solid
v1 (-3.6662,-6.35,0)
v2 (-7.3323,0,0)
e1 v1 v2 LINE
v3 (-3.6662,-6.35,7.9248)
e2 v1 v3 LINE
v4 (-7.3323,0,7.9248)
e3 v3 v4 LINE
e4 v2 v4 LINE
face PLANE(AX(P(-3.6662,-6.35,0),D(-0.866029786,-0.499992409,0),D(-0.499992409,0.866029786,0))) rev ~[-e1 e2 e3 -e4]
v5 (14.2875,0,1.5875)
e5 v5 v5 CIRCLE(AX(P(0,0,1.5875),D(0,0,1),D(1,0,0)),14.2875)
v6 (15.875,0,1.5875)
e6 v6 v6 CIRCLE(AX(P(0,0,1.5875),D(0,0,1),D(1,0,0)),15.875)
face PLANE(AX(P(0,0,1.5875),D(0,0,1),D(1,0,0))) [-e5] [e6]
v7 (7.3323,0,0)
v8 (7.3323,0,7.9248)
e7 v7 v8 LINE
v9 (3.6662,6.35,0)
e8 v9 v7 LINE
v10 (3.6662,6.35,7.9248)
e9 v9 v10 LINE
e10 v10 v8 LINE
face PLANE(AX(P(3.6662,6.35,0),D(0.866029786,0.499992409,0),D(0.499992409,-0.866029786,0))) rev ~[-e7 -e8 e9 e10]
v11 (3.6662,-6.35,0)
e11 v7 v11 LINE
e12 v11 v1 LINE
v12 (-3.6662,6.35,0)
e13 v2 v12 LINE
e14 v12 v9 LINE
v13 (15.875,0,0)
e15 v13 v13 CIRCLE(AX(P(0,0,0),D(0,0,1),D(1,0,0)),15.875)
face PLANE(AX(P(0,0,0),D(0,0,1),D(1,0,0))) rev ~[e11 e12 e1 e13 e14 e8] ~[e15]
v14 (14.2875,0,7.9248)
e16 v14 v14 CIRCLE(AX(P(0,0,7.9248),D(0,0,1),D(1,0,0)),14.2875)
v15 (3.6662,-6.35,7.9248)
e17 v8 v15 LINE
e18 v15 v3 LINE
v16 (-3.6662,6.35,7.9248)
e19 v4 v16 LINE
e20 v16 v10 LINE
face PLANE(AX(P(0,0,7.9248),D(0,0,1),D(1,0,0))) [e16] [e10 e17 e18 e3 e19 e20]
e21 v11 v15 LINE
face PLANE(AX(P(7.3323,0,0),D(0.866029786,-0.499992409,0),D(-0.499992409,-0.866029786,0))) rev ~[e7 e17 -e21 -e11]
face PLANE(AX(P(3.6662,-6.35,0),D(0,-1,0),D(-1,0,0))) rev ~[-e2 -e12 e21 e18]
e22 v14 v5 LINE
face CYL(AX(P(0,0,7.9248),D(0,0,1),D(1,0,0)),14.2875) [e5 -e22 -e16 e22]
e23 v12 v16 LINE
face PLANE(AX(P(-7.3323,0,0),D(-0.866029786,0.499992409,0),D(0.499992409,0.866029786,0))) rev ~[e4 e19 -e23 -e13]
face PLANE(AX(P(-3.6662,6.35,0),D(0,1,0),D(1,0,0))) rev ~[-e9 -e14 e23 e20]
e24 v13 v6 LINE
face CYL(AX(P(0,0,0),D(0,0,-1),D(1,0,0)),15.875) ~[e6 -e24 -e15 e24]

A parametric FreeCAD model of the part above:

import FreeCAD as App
import Part
import Sketcher
from FreeCAD import Vector
Q = App.Units.Quantity


def add_polygon(sketch, points):
    """Adds a closed chain of lines whose ends are joined by coincident constraints."""
    first, n = sketch.GeometryCount, len(points)
    for a, b in zip(points, points[1:] + points[:1]):
        sketch.addGeometry(Part.LineSegment(App.Vector(*a, 0), App.Vector(*b, 0)), False)
    for i in range(n):
        sketch.addConstraint(Sketcher.Constraint("Coincident", first + i, 2, first + (i + 1) % n, 1))

doc = App.newDocument("Part")
body = doc.addObject("PartDesign::Body", "Body")

# Sketch on XY plane
sketch1 = body.newObject("Sketcher::SketchObject", "Sketch")
sketch1.AttachmentSupport = (doc.getObject("XY_Plane"), [""])
sketch1.MapMode = "FlatFace"
sketch1.addGeometry(Part.Circle(Vector(0, 0, 0), Vector(0, 0, 1), 16), False)  # 0
add_polygon(sketch1, [(-4, 6), (4, 6), (7, 0), (4, -6), (-4, -6), (-7, 0)])  # lines 1-6
sketch1.addConstraint(Sketcher.Constraint("Horizontal", 1))
sketch1.addConstraint(Sketcher.Constraint("Horizontal", 4))
sketch1.addConstraint(Sketcher.Constraint("Coincident", 0, 3, -1, 1))
sketch1.addConstraint(Sketcher.Constraint("Symmetric", 1, 2, 4, 2, -1, 1))
sketch1.addConstraint(Sketcher.Constraint("Symmetric", 2, 2, 5, 2, -1, 1))
sketch1.addConstraint(Sketcher.Constraint("PointOnObject", 2, 2, -1))
sketch1.addConstraint(Sketcher.Constraint("Parallel", 3, 6))
sketch1.addConstraint(Sketcher.Constraint("Vertical", 1, 2, 3, 2))
sketch1.addConstraint(Sketcher.Constraint("Diameter", 0, Q("1.25 in")))
sketch1.addConstraint(Sketcher.Constraint("DistanceY", 3, 2, 1, 2, Q("0.5 in")))
sketch1.addConstraint(Sketcher.Constraint("Angle", 2, Q("-60.0005 deg")))
sketch1.addConstraint(Sketcher.Constraint("DistanceX", 4, 2, 2, 2, Q("0.433 in")))
pad1 = body.newObject("PartDesign::Pad", "Pad")
pad1.Profile = sketch1
pad1.Length = Q("0.312 in")

# Sketch on XY plane
sketch2 = body.newObject("Sketcher::SketchObject", "Sketch001")
sketch2.AttachmentSupport = (doc.getObject("XY_Plane"), [""])
sketch2.MapMode = "FlatFace"
sketch2.AttachmentOffset = App.Placement(Vector(0, 0, 0.312 * 25.4), App.Rotation())
sketch2.addGeometry(Part.Circle(Vector(0, 0, 0), Vector(0, 0, 1), 16), False)
sketch2.addGeometry(Part.Circle(Vector(0, 0, 0), Vector(0, 0, 1), 14), False)
sketch2.addConstraint(Sketcher.Constraint("Coincident", 0, 3, -1, 1))
sketch2.addConstraint(Sketcher.Constraint("Coincident", 1, 3, -1, 1))
sketch2.addConstraint(Sketcher.Constraint("Diameter", 0, Q("1.25 in")))
sketch2.addConstraint(Sketcher.Constraint("Diameter", 1, Q("1.125 in")))
pocket1 = body.newObject("PartDesign::Pocket", "Pocket")
pocket1.Profile = sketch2
pocket1.Length = Q("0.2495 in")

doc.recompute()
